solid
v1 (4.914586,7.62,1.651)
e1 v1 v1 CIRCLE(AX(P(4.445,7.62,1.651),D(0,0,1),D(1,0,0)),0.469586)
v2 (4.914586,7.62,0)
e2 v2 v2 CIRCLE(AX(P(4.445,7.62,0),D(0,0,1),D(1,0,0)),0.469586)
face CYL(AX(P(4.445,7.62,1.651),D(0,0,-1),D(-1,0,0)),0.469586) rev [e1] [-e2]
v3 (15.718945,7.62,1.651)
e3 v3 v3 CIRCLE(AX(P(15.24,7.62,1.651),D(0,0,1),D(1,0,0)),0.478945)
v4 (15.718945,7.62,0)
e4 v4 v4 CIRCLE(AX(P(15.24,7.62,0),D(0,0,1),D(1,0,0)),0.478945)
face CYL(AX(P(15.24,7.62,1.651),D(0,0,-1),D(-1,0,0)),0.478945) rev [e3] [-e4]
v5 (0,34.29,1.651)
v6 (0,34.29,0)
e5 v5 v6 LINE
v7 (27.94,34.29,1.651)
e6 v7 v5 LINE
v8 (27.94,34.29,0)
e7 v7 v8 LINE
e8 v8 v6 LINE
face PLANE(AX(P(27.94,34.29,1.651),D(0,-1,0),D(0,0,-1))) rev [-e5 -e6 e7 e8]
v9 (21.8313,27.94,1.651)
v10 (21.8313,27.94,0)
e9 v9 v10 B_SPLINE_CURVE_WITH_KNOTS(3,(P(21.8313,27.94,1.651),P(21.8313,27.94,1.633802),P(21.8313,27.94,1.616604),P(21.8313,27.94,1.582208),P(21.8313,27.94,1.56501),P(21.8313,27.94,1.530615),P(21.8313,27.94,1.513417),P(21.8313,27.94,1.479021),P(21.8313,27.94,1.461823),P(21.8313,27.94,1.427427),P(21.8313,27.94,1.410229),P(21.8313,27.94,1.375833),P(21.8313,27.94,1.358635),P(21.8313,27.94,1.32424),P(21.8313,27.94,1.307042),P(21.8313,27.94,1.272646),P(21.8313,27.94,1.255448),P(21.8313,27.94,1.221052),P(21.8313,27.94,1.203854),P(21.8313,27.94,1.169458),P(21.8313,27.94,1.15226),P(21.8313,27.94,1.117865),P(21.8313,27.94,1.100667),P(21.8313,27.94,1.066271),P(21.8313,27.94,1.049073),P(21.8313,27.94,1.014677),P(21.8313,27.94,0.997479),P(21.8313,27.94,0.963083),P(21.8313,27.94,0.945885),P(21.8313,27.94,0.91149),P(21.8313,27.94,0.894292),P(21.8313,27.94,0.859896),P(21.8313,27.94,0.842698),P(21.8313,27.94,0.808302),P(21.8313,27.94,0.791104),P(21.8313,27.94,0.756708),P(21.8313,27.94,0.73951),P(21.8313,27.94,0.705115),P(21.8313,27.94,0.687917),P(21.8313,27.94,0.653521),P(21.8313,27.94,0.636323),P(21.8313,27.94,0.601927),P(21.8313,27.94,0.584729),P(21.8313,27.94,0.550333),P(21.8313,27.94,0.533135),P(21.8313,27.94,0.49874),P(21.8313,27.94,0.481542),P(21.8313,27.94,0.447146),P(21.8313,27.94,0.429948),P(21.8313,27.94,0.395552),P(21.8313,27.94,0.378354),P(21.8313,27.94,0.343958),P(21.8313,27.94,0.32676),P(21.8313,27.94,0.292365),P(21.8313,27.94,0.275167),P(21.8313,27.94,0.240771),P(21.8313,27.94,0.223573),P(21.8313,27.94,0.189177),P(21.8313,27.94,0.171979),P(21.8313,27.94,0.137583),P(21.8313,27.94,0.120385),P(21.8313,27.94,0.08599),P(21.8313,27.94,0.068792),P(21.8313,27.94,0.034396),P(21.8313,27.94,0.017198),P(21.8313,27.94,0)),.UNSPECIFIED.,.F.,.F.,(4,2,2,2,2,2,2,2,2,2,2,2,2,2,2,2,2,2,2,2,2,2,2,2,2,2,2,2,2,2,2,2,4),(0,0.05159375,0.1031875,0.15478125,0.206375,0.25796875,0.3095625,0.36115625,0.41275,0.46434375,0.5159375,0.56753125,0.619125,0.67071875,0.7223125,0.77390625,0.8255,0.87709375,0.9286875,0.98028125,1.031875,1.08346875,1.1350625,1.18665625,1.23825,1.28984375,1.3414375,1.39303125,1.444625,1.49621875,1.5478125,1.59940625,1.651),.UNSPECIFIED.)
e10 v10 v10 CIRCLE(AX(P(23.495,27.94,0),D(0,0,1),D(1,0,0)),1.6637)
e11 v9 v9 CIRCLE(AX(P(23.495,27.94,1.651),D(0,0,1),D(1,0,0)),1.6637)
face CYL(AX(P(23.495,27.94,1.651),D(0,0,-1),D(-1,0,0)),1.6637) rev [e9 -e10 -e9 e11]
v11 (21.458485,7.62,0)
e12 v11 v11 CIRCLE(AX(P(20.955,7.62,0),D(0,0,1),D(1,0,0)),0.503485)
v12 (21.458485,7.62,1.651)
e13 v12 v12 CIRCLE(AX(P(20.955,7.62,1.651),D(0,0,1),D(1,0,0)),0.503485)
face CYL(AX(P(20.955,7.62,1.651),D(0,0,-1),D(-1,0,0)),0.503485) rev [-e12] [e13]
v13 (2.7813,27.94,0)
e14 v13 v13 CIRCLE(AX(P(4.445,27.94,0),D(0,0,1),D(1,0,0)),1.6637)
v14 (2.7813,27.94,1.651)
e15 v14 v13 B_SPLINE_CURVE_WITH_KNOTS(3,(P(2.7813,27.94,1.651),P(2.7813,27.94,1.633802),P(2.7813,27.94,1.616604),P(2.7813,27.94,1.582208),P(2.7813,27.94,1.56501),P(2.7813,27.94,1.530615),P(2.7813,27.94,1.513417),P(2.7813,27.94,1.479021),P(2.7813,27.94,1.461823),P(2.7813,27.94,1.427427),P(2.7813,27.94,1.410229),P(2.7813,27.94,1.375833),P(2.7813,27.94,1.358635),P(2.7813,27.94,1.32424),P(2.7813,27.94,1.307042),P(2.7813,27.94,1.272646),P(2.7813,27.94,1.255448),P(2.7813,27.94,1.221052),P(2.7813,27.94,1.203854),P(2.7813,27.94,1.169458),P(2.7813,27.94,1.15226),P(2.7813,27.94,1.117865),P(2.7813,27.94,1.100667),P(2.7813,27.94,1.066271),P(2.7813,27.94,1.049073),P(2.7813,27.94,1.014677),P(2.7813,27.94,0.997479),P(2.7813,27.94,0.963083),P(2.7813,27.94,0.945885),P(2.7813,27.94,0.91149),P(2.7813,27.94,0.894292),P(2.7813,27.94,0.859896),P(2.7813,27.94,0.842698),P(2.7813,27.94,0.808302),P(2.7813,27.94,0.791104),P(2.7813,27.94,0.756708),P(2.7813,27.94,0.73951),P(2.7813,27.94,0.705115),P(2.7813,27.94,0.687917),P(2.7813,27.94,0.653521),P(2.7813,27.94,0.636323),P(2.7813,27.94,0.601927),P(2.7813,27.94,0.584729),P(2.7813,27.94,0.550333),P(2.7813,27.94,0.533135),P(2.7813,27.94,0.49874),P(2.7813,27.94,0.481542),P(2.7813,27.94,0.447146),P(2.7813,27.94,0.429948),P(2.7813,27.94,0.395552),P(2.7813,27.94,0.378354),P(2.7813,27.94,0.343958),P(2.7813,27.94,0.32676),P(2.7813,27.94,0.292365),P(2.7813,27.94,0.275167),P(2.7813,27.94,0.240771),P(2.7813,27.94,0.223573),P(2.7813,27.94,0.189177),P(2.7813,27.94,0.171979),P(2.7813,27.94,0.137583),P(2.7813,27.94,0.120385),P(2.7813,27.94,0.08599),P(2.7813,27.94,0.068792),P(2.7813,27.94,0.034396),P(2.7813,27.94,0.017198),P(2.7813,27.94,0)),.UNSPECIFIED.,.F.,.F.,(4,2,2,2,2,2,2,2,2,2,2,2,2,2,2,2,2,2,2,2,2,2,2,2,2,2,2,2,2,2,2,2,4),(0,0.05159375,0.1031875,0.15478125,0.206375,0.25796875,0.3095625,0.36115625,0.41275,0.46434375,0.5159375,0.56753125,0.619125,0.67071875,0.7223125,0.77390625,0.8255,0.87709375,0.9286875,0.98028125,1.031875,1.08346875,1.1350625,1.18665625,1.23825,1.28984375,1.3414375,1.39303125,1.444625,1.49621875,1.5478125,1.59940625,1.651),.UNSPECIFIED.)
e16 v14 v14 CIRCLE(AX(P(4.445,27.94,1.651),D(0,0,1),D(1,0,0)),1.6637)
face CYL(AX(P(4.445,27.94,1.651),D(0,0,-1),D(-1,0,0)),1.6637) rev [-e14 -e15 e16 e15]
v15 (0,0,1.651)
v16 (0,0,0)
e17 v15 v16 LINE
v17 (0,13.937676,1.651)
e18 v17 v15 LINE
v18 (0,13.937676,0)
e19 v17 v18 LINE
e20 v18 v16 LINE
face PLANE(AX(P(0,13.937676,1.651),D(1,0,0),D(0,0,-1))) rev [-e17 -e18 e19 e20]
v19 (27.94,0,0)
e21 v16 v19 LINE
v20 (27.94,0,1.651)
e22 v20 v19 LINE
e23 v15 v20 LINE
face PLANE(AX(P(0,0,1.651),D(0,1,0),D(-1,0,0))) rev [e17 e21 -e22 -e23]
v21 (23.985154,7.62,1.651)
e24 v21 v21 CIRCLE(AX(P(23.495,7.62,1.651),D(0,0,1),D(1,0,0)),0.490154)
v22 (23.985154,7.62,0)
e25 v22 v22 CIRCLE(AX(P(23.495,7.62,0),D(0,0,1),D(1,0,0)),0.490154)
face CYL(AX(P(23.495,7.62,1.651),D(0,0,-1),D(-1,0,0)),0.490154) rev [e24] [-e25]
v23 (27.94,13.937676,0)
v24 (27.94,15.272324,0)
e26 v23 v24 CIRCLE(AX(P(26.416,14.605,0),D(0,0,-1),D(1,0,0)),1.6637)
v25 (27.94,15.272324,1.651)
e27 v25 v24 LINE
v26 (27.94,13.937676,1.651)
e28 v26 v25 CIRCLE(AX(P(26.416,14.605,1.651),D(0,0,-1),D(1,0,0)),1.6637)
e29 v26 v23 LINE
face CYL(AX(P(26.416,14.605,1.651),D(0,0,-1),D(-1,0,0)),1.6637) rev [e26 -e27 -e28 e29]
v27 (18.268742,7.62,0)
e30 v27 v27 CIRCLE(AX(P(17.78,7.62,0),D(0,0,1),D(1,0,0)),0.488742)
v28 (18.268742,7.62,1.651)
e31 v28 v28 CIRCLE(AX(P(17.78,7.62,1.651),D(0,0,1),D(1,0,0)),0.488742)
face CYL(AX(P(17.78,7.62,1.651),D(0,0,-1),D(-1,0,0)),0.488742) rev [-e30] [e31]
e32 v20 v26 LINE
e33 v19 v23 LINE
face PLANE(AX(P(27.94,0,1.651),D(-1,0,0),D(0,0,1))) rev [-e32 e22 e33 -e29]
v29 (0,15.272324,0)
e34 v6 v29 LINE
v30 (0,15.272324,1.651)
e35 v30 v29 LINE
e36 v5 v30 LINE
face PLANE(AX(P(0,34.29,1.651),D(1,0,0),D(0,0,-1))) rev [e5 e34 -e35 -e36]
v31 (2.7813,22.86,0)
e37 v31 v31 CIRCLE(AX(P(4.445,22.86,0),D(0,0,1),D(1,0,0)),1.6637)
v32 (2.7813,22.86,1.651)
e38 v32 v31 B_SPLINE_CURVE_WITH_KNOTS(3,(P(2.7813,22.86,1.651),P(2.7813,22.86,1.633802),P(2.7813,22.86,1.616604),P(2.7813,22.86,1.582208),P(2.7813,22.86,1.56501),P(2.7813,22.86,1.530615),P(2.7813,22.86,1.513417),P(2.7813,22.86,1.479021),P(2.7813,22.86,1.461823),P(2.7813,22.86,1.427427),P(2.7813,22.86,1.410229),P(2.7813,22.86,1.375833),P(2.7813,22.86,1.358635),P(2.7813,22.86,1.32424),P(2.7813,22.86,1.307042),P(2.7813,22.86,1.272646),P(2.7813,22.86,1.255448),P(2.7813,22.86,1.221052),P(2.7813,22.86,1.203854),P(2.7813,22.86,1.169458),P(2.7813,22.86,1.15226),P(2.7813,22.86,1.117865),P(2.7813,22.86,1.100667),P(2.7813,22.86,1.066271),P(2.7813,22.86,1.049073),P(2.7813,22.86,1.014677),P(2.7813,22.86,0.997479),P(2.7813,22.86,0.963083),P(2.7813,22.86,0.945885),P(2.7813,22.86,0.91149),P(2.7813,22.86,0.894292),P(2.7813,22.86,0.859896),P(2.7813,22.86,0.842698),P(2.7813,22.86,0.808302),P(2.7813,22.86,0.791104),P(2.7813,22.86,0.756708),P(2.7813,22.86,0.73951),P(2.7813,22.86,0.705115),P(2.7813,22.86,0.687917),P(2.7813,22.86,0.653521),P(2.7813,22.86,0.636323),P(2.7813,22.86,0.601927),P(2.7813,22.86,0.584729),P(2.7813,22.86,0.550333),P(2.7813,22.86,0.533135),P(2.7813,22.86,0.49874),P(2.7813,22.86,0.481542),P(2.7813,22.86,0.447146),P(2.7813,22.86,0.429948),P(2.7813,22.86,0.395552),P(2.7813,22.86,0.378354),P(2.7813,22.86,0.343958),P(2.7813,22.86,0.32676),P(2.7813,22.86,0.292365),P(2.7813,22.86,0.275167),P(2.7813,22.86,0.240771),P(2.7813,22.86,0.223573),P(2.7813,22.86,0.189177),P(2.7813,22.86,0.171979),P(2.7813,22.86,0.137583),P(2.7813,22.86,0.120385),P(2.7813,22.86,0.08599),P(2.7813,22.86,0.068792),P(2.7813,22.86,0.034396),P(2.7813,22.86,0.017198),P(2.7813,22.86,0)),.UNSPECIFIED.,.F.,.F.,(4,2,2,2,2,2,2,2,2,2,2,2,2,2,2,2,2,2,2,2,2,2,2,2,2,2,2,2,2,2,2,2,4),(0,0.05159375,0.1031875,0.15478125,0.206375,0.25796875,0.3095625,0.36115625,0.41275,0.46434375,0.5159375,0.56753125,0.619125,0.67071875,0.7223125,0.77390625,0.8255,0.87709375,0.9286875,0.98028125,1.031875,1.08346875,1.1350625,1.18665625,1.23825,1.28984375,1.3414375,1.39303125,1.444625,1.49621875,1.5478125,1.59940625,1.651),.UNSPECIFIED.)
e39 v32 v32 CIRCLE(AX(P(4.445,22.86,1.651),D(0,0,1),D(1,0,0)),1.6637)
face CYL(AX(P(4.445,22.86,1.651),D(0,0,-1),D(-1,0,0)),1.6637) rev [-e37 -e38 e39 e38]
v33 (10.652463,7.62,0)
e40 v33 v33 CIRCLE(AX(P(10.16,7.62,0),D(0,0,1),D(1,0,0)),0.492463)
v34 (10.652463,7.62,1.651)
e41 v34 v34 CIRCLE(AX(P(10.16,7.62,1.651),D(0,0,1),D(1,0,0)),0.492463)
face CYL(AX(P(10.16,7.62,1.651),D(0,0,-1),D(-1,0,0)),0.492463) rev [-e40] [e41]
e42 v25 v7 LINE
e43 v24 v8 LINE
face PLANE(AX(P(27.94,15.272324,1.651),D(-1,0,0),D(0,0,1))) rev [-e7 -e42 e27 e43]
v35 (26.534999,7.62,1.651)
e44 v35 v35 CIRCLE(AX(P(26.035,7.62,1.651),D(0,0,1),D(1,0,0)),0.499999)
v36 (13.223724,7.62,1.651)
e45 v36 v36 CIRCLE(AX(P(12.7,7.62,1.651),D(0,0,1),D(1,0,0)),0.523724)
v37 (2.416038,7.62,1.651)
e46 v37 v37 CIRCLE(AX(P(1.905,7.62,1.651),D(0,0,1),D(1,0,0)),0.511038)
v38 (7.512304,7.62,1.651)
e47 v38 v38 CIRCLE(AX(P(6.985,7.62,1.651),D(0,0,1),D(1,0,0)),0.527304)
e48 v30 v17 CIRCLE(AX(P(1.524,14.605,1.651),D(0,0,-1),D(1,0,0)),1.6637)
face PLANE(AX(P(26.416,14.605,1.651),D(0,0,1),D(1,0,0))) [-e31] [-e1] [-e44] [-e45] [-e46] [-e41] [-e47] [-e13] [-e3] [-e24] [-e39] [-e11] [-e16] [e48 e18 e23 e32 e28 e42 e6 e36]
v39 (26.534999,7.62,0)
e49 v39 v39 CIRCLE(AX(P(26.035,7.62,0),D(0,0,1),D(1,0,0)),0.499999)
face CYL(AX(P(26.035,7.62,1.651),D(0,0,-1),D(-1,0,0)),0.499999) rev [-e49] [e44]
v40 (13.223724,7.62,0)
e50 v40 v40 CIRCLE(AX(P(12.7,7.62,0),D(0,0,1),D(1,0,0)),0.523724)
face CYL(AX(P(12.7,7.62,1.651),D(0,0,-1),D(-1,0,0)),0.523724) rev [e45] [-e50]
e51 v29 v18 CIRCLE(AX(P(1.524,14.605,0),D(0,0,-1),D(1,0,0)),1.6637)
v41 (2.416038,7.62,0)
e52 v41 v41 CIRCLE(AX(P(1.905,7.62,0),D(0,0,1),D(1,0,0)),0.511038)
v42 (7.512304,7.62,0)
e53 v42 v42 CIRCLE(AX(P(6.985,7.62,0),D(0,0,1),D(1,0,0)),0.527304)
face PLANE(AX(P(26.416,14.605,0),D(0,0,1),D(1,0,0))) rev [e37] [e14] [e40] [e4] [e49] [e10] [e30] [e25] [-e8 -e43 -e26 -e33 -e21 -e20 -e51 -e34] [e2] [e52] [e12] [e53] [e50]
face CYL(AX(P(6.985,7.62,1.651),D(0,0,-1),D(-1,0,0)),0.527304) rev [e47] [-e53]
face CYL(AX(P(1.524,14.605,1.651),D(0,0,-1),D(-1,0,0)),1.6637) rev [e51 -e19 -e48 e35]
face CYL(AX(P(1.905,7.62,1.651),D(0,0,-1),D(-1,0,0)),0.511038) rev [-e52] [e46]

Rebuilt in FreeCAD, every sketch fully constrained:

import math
import FreeCAD as App
import Part
import Sketcher
from FreeCAD import Vector
Q = App.Units.Quantity

doc = App.newDocument("Part")
body = doc.addObject("PartDesign::Body", "Body")

# Sketch on XY plane
sketch1 = body.newObject("Sketcher::SketchObject", "Sketch")
sketch1.AttachmentSupport = (doc.getObject("XY_Plane"), [""])
sketch1.MapMode = "FlatFace"
sketch1.addGeometry([
    Part.LineSegment(Vector(0, 0, 0), Vector(27.94, 0, 0)),  # 0
    Part.LineSegment(Vector(27.94, 0, 0), Vector(27.94, 13.94, 0)),  # 1
    Part.ArcOfCircle(Part.Circle(Vector(26.42, 14.61, 0), Vector(0, 0, 1), 1.66), math.radians(24), math.radians(336)),  # 2
    Part.LineSegment(Vector(27.94, 15.27, 0), Vector(27.94, 34.29, 0)),  # 3
    Part.LineSegment(Vector(27.94, 34.29, 0), Vector(0, 34.29, 0)),  # 4
    Part.LineSegment(Vector(0, 34.29, 0), Vector(0, 15.27, 0)),  # 5
    Part.ArcOfCircle(Part.Circle(Vector(1.52, 14.61, 0), Vector(0, 0, 1), 1.66), math.radians(-156), math.radians(156)),  # 6
    Part.LineSegment(Vector(0, 13.94, 0), Vector(0, 0, 0)),  # 7
    Part.Circle(Vector(1.91, 7.62, 0), Vector(0, 0, 1), 0.51),  # 8
    Part.Circle(Vector(4.45, 7.62, 0), Vector(0, 0, 1), 0.47),  # 9
    Part.Circle(Vector(6.99, 7.62, 0), Vector(0, 0, 1), 0.53),  # 10
    Part.Circle(Vector(10.16, 7.62, 0), Vector(0, 0, 1), 0.49),  # 11
    Part.Circle(Vector(12.7, 7.62, 0), Vector(0, 0, 1), 0.52),  # 12
    Part.Circle(Vector(15.24, 7.62, 0), Vector(0, 0, 1), 0.48),  # 13
    Part.Circle(Vector(17.78, 7.62, 0), Vector(0, 0, 1), 0.49),  # 14
    Part.Circle(Vector(20.95, 7.62, 0), Vector(0, 0, 1), 0.5),  # 15
    Part.Circle(Vector(23.5, 7.62, 0), Vector(0, 0, 1), 0.49),  # 16
    Part.Circle(Vector(26.04, 7.62, 0), Vector(0, 0, 1), 0.5),  # 17
    Part.Circle(Vector(4.45, 22.86, 0), Vector(0, 0, 1), 1.66),  # 18
    Part.Circle(Vector(4.45, 27.94, 0), Vector(0, 0, 1), 1.66),  # 19
    Part.Circle(Vector(23.5, 27.94, 0), Vector(0, 0, 1), 1.66),  # 20
], False)
sketch1.addConstraint([
    Sketcher.Constraint("Coincident", 0, 2, 1, 1),
    Sketcher.Constraint("Coincident", 1, 2, 2, 2),
    Sketcher.Constraint("Coincident", 2, 1, 3, 1),
    Sketcher.Constraint("Coincident", 3, 2, 4, 1),
    Sketcher.Constraint("Coincident", 4, 2, 5, 1),
    Sketcher.Constraint("Coincident", 5, 2, 6, 2),
    Sketcher.Constraint("Coincident", 6, 1, 7, 1),
    Sketcher.Constraint("Coincident", 7, 2, 0, 1),
    Sketcher.Constraint("Horizontal", 0),
    Sketcher.Constraint("Vertical", 1),
    Sketcher.Constraint("Vertical", 3),
    Sketcher.Constraint("Horizontal", 4),
    Sketcher.Constraint("Vertical", 5),
    Sketcher.Constraint("Vertical", 7),
    Sketcher.Constraint("Coincident", 7, 2, -1, 1),
    Sketcher.Constraint("Equal", 2, 6),
    Sketcher.Constraint("Equal", 6, 18),
    Sketcher.Constraint("Equal", 18, 19),
    Sketcher.Constraint("Equal", 19, 20),
    Sketcher.Constraint("PointOnObject", 4, 2, -2),
    Sketcher.Constraint("Horizontal", 2, 3, 6, 3),
    Sketcher.Constraint("Horizontal", 8, 3, 9, 3),
    Sketcher.Constraint("Horizontal", 9, 3, 10, 3),
    Sketcher.Constraint("Horizontal", 10, 3, 11, 3),
    Sketcher.Constraint("Horizontal", 11, 3, 12, 3),
    Sketcher.Constraint("Horizontal", 12, 3, 13, 3),
    Sketcher.Constraint("Horizontal", 13, 3, 14, 3),
    Sketcher.Constraint("Horizontal", 14, 3, 15, 3),
    Sketcher.Constraint("Horizontal", 15, 3, 16, 3),
    Sketcher.Constraint("Horizontal", 16, 3, 17, 3),
    Sketcher.Constraint("Horizontal", 19, 3, 20, 3),
    Sketcher.Constraint("Horizontal", 2, 1, 5, 2),
    Sketcher.Constraint("Horizontal", 1, 2, 6, 1),
    Sketcher.Constraint("Vertical", 9, 3, 18, 3),
    Sketcher.Constraint("Vertical", 18, 3, 19, 3),
    Sketcher.Constraint("Vertical", 16, 3, 20, 3),
    Sketcher.Constraint("Diameter", 18, Q("0.131 in")),
    Sketcher.Constraint("DistanceX", 0, 1, 0, 2, Q("1.1 in")),
    Sketcher.Constraint("DistanceY", -1, 1, 8, 3, Q("0.3 in")),
    Sketcher.Constraint("DistanceX", -1, 1, 11, 3, Q("0.4 in")),
    Sketcher.Constraint("DistanceX", -1, 1, 12, 3, Q("0.5 in")),
    Sketcher.Constraint("DistanceX", -1, 1, 13, 3, Q("0.6 in")),
    Sketcher.Constraint("DistanceX", -1, 1, 14, 3, Q("0.7 in")),
    Sketcher.Constraint("DistanceY", -1, 1, 18, 3, Q("0.9 in")),
    Sketcher.Constraint("DistanceY", -1, 1, 19, 3, Q("1.1 in")),
    Sketcher.Constraint("DistanceX", 8, 3, 9, 3, Q("0.1 in")),
    Sketcher.Constraint("DistanceX", 9, 3, 10, 3, Q("0.1 in")),
    Sketcher.Constraint("DistanceX", 15, 3, 16, 3, Q("0.1 in")),
    Sketcher.Constraint("DistanceX", 16, 3, 17, 3, Q("0.1 in")),
    Sketcher.Constraint("Diameter", 17, 0.999998),
    Sketcher.Constraint("DistanceX", -1, 1, 2, 3, Q("1.04 in")),
    Sketcher.Constraint("DistanceY", -1, 1, 3, 2, Q("1.35 in")),
    Sketcher.Constraint("DistanceX", 19, 3, 20, 3, Q("0.75 in")),
    Sketcher.Constraint("Diameter", 10, 1.054608),
    Sketcher.Constraint("Diameter", 12, 1.047448),
    Sketcher.Constraint("Diameter", 13, 0.957889),
    Sketcher.Constraint("Diameter", 15, 1.00697),
    Sketcher.Constraint("Diameter", 16, 0.980309),
    Sketcher.Constraint("DistanceY", -1, 1, 2, 3, Q("0.575 in")),
    Sketcher.Constraint("DistanceX", -1, 1, 8, 3, Q("0.075 in")),
    Sketcher.Constraint("Diameter", 8, 1.022075),
    Sketcher.Constraint("Diameter", 9, 0.939173),
    Sketcher.Constraint("Diameter", 11, 0.984925),
    Sketcher.Constraint("Diameter", 14, 0.977484),
])
pad1 = body.newObject("PartDesign::Pad", "Pad")
pad1.Profile = sketch1
pad1.Length = Q("0.065 in")

doc.recompute()
